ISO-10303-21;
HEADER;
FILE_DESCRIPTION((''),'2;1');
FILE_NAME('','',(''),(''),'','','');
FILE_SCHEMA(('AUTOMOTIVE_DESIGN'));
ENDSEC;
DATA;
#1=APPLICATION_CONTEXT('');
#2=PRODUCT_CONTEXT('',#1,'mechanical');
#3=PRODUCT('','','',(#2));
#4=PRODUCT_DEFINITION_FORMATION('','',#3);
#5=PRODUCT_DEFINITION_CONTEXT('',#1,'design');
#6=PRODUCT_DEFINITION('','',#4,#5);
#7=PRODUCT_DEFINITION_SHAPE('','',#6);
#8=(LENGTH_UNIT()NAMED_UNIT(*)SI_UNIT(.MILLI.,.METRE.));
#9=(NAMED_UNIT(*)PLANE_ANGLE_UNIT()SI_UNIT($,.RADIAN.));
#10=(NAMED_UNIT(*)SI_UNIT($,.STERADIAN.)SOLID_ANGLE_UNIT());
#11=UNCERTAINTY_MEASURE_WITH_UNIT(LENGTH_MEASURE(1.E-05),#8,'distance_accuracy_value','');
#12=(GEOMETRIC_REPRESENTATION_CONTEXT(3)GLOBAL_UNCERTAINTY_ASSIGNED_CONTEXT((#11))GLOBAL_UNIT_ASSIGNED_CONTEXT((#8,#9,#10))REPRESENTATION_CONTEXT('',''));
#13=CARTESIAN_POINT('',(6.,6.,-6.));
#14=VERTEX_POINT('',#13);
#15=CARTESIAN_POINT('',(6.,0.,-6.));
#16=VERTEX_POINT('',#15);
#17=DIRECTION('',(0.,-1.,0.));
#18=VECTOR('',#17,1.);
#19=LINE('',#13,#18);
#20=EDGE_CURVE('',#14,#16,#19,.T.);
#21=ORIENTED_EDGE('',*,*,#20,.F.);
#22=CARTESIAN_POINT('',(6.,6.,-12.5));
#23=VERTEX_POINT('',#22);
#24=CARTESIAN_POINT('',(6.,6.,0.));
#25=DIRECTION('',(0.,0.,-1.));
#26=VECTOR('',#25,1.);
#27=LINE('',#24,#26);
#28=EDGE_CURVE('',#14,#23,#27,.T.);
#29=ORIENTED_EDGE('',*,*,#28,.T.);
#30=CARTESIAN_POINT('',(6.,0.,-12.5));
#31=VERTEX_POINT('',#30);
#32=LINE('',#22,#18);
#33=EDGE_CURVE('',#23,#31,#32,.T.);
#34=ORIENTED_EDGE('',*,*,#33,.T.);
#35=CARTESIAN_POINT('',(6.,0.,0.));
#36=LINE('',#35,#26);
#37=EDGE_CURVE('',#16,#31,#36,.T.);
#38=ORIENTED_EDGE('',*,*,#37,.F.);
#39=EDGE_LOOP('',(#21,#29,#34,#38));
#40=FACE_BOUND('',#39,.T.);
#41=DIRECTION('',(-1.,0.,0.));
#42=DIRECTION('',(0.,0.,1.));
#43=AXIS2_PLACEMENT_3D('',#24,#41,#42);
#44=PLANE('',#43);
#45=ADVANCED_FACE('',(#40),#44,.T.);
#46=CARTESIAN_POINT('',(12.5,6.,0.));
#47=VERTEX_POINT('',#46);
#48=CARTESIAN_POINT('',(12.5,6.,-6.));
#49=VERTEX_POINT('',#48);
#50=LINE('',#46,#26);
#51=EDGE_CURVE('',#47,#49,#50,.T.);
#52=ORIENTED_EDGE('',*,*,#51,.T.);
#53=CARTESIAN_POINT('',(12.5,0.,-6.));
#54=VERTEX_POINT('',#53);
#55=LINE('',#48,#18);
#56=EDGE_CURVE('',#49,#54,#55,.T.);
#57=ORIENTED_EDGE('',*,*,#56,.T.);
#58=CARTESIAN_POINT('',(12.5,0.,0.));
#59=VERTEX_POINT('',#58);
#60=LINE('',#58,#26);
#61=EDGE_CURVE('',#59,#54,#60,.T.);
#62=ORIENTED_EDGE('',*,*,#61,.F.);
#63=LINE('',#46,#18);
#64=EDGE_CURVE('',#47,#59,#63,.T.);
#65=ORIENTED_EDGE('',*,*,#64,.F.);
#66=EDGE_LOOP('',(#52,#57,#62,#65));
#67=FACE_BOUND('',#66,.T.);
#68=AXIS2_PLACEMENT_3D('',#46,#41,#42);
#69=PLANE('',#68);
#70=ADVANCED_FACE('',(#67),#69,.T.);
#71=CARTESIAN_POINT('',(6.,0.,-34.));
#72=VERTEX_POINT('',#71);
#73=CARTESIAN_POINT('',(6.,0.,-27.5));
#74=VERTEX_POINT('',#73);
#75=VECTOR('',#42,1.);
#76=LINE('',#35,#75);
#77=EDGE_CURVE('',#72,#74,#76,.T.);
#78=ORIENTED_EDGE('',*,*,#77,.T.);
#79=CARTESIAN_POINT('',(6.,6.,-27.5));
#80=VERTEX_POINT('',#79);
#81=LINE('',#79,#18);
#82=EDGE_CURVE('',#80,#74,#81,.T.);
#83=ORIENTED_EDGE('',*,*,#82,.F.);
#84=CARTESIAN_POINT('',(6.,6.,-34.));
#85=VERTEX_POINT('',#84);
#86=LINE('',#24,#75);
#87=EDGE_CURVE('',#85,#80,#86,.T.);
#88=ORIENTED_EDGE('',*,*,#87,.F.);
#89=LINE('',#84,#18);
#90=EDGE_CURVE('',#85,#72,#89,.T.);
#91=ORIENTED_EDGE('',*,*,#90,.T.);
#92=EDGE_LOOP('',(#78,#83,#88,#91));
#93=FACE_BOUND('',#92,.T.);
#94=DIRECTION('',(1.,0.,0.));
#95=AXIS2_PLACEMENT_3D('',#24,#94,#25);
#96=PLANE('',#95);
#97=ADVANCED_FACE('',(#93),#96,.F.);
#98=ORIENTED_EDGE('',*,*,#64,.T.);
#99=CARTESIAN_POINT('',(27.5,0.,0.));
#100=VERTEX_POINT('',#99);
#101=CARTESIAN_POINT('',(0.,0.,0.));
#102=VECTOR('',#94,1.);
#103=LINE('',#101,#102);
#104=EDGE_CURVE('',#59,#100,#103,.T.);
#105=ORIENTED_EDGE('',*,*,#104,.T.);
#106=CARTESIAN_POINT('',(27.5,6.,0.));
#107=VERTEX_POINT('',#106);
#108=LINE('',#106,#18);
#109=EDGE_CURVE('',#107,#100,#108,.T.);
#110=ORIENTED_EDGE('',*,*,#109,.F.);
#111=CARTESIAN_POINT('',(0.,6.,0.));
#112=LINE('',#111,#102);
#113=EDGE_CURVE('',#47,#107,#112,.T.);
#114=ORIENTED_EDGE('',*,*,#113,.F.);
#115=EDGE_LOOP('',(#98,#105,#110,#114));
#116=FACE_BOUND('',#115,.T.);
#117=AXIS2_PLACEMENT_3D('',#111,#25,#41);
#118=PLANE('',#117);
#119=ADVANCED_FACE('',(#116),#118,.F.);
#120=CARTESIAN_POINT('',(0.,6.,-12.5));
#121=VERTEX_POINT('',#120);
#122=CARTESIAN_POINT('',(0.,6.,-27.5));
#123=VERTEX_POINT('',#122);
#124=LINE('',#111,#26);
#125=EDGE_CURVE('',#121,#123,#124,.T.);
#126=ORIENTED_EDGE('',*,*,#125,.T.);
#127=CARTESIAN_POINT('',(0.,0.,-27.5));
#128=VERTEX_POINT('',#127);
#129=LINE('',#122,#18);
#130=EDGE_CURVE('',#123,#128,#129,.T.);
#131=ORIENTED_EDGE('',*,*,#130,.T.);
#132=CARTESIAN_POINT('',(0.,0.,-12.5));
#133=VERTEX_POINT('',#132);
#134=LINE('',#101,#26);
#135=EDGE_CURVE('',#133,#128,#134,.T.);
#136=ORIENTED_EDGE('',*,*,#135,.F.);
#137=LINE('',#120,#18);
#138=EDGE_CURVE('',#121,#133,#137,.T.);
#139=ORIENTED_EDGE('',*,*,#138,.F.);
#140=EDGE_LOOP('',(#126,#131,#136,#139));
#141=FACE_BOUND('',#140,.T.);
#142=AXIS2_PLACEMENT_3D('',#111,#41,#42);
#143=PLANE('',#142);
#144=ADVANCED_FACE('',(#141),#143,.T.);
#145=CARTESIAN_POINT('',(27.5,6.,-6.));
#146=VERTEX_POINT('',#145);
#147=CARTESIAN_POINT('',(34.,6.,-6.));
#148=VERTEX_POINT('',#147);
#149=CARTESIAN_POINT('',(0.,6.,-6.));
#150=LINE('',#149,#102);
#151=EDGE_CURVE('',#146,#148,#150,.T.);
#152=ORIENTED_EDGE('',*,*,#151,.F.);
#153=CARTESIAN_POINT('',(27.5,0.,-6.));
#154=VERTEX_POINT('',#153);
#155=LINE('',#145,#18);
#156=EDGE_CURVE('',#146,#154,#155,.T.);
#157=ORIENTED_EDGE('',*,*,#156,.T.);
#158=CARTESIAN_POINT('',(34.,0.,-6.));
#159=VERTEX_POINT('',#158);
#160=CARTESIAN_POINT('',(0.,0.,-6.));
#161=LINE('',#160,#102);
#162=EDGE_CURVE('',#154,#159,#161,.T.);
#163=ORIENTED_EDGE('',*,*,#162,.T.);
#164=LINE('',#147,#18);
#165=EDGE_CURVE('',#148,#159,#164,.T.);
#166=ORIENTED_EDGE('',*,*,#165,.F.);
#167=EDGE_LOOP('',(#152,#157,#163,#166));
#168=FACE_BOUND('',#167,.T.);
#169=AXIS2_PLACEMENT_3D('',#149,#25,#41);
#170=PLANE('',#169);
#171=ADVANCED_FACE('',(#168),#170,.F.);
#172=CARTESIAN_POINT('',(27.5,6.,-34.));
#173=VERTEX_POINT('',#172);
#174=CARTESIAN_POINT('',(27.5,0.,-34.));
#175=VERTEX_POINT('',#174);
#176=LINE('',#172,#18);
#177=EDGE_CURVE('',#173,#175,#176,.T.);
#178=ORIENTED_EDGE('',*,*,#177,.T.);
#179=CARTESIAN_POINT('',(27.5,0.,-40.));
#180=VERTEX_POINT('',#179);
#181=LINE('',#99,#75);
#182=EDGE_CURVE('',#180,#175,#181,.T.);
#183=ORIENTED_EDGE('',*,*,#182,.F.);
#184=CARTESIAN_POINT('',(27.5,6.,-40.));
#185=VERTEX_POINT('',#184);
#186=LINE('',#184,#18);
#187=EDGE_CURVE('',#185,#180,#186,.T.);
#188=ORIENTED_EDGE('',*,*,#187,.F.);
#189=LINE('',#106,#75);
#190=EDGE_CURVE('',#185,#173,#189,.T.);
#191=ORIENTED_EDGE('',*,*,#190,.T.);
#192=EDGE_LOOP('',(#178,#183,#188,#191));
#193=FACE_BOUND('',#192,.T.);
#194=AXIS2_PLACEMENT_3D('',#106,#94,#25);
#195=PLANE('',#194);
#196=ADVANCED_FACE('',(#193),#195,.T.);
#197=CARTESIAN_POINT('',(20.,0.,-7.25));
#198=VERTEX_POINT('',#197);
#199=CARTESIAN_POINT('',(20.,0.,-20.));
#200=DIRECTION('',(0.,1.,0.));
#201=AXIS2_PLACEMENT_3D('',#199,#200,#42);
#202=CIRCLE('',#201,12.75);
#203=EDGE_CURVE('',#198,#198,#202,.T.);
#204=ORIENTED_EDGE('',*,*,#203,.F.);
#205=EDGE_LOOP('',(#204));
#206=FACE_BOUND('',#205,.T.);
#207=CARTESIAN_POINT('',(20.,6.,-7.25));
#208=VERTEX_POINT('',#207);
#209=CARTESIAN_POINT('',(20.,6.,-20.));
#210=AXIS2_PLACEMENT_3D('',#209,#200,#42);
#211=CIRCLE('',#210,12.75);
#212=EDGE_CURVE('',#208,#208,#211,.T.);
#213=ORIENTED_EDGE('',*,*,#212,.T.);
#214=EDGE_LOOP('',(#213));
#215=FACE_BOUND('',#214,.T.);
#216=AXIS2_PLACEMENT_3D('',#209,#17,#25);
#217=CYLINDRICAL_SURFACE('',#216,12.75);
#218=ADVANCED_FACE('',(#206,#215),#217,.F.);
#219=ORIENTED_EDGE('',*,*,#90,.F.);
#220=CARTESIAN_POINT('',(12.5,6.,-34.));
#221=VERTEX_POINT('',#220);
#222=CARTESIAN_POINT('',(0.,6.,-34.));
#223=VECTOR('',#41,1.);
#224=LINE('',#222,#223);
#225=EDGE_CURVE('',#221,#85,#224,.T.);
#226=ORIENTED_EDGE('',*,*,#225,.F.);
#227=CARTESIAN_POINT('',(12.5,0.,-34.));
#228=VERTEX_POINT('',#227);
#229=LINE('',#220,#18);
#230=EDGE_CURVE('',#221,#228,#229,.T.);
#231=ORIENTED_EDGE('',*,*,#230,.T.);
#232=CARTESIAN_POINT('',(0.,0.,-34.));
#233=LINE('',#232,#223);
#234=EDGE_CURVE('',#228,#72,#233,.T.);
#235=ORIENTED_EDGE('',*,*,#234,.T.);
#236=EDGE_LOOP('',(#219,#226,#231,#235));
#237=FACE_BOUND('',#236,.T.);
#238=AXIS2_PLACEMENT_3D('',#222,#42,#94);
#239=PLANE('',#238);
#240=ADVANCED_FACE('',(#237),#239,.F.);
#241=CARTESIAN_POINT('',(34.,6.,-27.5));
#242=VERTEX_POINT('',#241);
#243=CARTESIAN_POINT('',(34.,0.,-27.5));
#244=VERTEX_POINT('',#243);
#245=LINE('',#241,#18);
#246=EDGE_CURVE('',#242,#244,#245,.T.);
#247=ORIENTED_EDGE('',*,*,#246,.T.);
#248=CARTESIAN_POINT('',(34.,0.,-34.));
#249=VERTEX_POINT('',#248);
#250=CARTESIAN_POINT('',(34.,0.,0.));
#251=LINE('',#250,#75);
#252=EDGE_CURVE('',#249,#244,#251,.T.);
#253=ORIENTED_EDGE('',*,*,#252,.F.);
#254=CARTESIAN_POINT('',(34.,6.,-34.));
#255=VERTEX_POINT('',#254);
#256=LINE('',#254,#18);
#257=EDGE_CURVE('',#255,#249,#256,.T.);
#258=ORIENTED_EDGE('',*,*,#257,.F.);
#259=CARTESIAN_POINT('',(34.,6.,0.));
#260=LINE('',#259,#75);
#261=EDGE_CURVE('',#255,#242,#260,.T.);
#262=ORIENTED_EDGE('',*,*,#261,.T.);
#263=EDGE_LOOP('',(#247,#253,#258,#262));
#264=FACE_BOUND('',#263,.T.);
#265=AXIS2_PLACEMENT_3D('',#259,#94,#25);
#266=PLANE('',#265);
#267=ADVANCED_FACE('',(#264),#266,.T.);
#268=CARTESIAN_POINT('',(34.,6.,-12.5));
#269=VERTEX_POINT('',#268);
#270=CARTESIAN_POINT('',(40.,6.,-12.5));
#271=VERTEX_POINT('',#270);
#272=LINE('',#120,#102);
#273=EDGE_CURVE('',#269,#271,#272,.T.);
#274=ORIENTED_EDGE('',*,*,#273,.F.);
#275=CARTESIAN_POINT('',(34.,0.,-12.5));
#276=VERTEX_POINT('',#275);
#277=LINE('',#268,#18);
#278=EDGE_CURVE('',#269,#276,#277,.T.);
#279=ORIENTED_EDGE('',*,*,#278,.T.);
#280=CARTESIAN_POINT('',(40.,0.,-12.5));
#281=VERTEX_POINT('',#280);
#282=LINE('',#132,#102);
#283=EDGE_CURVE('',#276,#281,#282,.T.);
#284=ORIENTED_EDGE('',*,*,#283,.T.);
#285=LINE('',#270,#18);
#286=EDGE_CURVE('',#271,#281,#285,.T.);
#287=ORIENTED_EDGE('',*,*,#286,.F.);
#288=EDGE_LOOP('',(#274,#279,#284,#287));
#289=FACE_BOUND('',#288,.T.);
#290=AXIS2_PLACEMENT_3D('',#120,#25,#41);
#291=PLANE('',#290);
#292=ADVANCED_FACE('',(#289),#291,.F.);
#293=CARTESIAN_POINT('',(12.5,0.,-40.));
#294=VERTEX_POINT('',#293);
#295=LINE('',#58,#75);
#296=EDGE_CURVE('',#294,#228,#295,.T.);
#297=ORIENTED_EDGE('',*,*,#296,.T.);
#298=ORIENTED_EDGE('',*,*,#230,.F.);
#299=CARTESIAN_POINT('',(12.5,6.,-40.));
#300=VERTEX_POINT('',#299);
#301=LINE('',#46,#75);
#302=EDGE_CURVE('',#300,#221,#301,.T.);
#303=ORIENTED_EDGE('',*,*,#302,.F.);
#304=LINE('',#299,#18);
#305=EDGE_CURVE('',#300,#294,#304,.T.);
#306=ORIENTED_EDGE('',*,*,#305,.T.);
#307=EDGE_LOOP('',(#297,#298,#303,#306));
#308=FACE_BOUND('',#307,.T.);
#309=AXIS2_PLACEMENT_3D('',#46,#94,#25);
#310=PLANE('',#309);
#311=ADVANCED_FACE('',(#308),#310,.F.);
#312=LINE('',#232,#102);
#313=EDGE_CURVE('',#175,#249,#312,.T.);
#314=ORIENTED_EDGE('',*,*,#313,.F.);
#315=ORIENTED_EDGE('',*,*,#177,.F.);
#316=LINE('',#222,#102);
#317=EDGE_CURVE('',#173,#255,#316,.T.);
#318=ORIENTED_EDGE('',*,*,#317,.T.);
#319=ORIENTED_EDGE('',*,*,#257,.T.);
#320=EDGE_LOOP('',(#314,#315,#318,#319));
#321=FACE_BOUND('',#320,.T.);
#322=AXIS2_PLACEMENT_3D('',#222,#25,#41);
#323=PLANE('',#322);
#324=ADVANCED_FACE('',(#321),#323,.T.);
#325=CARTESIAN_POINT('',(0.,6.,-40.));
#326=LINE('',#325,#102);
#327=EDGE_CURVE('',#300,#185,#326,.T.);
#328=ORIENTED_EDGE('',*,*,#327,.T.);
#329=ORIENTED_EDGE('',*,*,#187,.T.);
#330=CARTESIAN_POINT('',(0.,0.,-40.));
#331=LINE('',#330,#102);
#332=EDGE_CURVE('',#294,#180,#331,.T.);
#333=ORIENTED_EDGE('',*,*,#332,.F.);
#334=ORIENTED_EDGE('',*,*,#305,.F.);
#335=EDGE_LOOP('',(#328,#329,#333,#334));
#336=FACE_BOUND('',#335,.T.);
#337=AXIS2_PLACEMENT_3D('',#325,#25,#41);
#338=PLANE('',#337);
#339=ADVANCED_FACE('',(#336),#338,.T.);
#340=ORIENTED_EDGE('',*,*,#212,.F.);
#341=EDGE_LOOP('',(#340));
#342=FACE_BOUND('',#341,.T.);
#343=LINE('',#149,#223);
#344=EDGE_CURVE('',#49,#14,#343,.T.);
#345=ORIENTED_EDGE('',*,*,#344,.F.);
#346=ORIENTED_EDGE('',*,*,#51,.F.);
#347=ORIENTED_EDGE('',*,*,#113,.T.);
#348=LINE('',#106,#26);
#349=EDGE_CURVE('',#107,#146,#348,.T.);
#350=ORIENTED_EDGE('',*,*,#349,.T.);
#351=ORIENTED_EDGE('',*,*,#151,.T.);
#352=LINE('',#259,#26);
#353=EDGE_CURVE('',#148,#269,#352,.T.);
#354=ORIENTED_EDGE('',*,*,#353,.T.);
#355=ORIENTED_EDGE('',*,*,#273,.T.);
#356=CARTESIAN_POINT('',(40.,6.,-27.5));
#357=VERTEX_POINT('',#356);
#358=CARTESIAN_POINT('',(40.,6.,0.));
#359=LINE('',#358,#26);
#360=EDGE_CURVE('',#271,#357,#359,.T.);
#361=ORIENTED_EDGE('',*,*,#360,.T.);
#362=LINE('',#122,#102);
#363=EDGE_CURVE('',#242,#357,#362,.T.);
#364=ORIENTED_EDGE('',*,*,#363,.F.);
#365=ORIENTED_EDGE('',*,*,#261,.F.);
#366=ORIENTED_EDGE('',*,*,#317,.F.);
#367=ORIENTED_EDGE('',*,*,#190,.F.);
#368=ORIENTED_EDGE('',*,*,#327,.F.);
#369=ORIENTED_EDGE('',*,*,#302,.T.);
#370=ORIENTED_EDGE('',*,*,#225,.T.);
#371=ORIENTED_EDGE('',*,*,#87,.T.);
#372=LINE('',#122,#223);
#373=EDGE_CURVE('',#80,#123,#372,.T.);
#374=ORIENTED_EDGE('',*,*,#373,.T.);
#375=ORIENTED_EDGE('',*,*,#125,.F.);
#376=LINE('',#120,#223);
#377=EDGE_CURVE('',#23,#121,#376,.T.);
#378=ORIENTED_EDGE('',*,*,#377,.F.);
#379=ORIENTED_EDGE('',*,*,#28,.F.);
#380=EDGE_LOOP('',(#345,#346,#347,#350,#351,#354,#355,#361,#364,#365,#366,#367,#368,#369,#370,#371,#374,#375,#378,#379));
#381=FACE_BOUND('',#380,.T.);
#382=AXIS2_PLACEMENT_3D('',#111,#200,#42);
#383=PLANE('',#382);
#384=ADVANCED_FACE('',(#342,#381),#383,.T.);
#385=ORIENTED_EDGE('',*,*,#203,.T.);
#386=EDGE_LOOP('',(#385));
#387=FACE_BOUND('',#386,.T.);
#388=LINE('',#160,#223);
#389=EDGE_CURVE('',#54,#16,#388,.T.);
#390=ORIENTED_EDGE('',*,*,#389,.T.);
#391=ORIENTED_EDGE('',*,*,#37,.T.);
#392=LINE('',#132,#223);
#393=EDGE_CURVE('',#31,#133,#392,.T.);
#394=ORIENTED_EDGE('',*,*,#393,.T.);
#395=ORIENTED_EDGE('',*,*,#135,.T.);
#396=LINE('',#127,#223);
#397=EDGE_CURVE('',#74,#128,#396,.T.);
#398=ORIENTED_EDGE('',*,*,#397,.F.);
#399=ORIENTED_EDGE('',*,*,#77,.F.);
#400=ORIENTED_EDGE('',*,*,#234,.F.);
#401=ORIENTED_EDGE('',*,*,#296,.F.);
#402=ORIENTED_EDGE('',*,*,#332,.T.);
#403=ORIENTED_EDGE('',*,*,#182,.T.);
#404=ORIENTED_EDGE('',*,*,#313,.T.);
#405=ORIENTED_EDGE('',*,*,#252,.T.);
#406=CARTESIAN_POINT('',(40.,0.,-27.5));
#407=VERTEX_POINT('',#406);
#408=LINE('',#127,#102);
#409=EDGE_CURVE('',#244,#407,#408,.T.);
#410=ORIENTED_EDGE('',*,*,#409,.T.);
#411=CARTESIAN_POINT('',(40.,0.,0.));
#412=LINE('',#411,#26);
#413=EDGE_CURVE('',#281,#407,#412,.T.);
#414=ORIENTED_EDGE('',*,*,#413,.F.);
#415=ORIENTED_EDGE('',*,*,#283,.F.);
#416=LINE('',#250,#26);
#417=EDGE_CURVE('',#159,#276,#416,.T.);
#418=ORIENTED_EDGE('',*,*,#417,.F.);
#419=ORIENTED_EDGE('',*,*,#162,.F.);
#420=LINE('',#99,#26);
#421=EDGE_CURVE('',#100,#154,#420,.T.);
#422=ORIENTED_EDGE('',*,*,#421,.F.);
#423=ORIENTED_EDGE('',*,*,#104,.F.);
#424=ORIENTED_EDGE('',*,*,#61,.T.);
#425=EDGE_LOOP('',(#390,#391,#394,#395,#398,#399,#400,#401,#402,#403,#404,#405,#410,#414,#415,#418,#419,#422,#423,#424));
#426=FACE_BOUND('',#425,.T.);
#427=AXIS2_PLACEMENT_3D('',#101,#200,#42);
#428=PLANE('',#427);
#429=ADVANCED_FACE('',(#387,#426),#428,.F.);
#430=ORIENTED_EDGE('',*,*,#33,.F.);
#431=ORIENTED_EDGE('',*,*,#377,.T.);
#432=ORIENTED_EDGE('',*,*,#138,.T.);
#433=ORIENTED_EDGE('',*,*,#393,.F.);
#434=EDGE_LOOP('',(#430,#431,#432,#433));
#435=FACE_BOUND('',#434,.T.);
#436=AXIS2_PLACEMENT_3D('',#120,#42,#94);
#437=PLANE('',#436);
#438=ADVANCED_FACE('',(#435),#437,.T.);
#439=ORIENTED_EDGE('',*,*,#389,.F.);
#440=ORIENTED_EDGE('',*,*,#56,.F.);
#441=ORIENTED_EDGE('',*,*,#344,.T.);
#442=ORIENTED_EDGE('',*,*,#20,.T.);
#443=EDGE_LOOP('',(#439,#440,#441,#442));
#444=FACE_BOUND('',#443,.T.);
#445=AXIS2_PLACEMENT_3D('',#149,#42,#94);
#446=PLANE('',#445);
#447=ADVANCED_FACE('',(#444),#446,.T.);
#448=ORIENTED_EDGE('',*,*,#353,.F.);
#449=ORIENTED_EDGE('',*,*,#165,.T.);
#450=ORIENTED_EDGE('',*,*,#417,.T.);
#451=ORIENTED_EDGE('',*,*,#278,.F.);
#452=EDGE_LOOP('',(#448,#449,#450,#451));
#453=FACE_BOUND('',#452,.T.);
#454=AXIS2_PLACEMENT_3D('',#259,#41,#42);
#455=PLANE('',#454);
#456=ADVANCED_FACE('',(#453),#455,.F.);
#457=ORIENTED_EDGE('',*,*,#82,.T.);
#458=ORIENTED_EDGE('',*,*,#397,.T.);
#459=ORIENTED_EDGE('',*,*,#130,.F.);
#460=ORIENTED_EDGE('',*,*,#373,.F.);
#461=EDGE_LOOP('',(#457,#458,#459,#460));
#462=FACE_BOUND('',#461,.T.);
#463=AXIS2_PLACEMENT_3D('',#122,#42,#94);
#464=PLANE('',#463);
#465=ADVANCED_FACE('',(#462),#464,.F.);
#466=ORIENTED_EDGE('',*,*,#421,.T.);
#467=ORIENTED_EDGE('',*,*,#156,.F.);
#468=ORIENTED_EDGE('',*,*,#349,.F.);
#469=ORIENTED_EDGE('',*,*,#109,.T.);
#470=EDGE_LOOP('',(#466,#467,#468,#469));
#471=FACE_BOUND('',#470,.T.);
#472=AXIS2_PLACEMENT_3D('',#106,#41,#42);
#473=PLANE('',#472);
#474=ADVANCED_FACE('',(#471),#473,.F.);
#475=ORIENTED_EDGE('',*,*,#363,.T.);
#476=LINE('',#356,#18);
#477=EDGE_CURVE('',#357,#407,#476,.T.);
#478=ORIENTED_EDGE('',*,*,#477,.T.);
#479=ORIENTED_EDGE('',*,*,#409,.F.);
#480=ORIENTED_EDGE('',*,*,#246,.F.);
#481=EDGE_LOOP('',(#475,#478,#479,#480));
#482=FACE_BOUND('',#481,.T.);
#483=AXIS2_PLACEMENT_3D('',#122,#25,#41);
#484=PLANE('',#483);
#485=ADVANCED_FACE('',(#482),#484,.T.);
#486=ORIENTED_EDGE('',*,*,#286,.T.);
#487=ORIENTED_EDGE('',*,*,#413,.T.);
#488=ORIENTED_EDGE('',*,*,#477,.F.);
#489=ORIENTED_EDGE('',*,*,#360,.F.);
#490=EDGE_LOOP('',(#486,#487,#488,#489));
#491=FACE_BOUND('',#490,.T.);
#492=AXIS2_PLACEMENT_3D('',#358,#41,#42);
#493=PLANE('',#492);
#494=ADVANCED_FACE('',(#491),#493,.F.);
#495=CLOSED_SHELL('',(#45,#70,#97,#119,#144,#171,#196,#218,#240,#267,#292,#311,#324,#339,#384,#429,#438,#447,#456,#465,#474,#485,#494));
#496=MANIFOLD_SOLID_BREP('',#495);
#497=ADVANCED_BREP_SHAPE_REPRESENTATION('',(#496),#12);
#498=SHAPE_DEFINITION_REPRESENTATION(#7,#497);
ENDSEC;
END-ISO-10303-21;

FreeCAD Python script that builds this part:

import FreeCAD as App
import Part
import Sketcher
from FreeCAD import Vector
Q = App.Units.Quantity


def add_polygon(sketch, points):
    """Adds a closed chain of lines whose ends are joined by coincident constraints."""
    first, n = sketch.GeometryCount, len(points)
    for a, b in zip(points, points[1:] + points[:1]):
        sketch.addGeometry(Part.LineSegment(App.Vector(*a, 0), App.Vector(*b, 0)), False)
    for i in range(n):
        sketch.addConstraint(Sketcher.Constraint("Coincident", first + i, 2, first + (i + 1) % n, 1))

doc = App.newDocument("Part")
params = doc.addObject("Spreadsheet::Sheet", "Params")
for row, (alias, value) in enumerate([
    ("sketch1_diameter", "25.5 mm"),
    ("sketch1_width", "15 mm"),
    ("sketch1_width2", "6 mm"),
    ("sketch1_width3", "6.5 mm"),
    ("pad1_length", "6 mm"),
], start=1):
    params.set(f"A{row}", alias)
    params.set(f"B{row}", "=" + value)
    params.setAlias(f"B{row}", alias)

body = doc.addObject("PartDesign::Body", "Body")

# Sketch on XZ plane
sketch1 = body.newObject("Sketcher::SketchObject", "Sketch")
sketch1.AttachmentSupport = (doc.getObject("XZ_Plane"), [""])
sketch1.MapMode = "FlatFace"
add_polygon(sketch1, [(28, -40), (12, -40), (12, -34), (6, -34), (6, -28), (0, -28), (0, -12), (6, -12), (6, -6), (12, -6), (12, 0), (28, 0), (28, -6), (34, -6), (34, -12), (40, -12), (40, -28), (34, -28), (34, -34), (28, -34)])  # lines 0-19
sketch1.addGeometry(Part.Circle(Vector(20, -20, 0), Vector(0, 0, 1), 13), False)  # 20
sketch1.addConstraint(Sketcher.Constraint("Horizontal", 0))
sketch1.addConstraint(Sketcher.Constraint("Vertical", 1))
sketch1.addConstraint(Sketcher.Constraint("Horizontal", 2))
sketch1.addConstraint(Sketcher.Constraint("Vertical", 3))
sketch1.addConstraint(Sketcher.Constraint("Horizontal", 4))
sketch1.addConstraint(Sketcher.Constraint("Vertical", 5))
sketch1.addConstraint(Sketcher.Constraint("Horizontal", 6))
sketch1.addConstraint(Sketcher.Constraint("Vertical", 7))
sketch1.addConstraint(Sketcher.Constraint("Horizontal", 8))
sketch1.addConstraint(Sketcher.Constraint("Vertical", 9))
sketch1.addConstraint(Sketcher.Constraint("Horizontal", 10))
sketch1.addConstraint(Sketcher.Constraint("Vertical", 11))
sketch1.addConstraint(Sketcher.Constraint("Horizontal", 12))
sketch1.addConstraint(Sketcher.Constraint("Vertical", 13))
sketch1.addConstraint(Sketcher.Constraint("Horizontal", 14))
sketch1.addConstraint(Sketcher.Constraint("Vertical", 15))
sketch1.addConstraint(Sketcher.Constraint("Horizontal", 16))
sketch1.addConstraint(Sketcher.Constraint("Vertical", 17))
sketch1.addConstraint(Sketcher.Constraint("Horizontal", 18))
sketch1.addConstraint(Sketcher.Constraint("Vertical", 19))
sketch1.addConstraint(Sketcher.Constraint("PointOnObject", 4, 2, -2))
sketch1.addConstraint(Sketcher.Constraint("PointOnObject", 9, 2, -1))
sketch1.addConstraint(Sketcher.Constraint("Horizontal", 8, 2, 11, 2))
sketch1.addConstraint(Sketcher.Constraint("Horizontal", 6, 2, 13, 2))
sketch1.addConstraint(Sketcher.Constraint("Horizontal", 4, 2, 15, 2))
sketch1.addConstraint(Sketcher.Constraint("Horizontal", 2, 2, 17, 2))
sketch1.addConstraint(Sketcher.Constraint("Vertical", 3, 2, 6, 2))
sketch1.addConstraint(Sketcher.Constraint("Vertical", 1, 2, 8, 2))
sketch1.addConstraint(Sketcher.Constraint("Vertical", 13, 2, 16, 2))
sketch1.addConstraint(Sketcher.Constraint("Vertical", 11, 2, 18, 2))
sketch1.addConstraint(Sketcher.Constraint("Equal", 8, 12))
sketch1.addConstraint(Sketcher.Constraint("Equal", 6, 14))
sketch1.addConstraint(Sketcher.Constraint("Equal", 16, 1))
sketch1.addConstraint(Sketcher.Constraint("Equal", 18, 3))
sketch1.addConstraint(Sketcher.Constraint("Equal", 10, 5))
sketch1.addConstraint(Sketcher.Constraint("Equal", 3, 7))
sketch1.addConstraint(Sketcher.Constraint("Equal", 1, 9))
sketch1.addConstraint(Sketcher.Constraint("Diameter", 20, Q("25.5 mm")))
sketch1.addConstraint(Sketcher.Constraint("DistanceX", 0, 2, 0, 1, Q("15 mm")))
sketch1.addConstraint(Sketcher.Constraint("DistanceX", 4, 2, 4, 1, Q("6 mm")))
sketch1.addConstraint(Sketcher.Constraint("DistanceX", 2, 2, 2, 1, Q("6.5 mm")))
sketch1.addConstraint(Sketcher.Constraint("DistanceX", -1, 1, 20, 3, Q("20 mm")))
sketch1.addConstraint(Sketcher.Constraint("DistanceY", 20, 3, -1, 1, Q("20 mm")))
sketch1.setExpression("Constraints[57]", "Params.sketch1_diameter")
sketch1.setExpression("Constraints[58]", "Params.sketch1_width")
sketch1.setExpression("Constraints[59]", "Params.sketch1_width2")
sketch1.setExpression("Constraints[60]", "Params.sketch1_width3")
pad1 = body.newObject("PartDesign::Pad", "Pad")
pad1.Profile = sketch1
pad1.setExpression("Length", "Params.pad1_length")
pad1.Reversed = True

doc.recompute()
